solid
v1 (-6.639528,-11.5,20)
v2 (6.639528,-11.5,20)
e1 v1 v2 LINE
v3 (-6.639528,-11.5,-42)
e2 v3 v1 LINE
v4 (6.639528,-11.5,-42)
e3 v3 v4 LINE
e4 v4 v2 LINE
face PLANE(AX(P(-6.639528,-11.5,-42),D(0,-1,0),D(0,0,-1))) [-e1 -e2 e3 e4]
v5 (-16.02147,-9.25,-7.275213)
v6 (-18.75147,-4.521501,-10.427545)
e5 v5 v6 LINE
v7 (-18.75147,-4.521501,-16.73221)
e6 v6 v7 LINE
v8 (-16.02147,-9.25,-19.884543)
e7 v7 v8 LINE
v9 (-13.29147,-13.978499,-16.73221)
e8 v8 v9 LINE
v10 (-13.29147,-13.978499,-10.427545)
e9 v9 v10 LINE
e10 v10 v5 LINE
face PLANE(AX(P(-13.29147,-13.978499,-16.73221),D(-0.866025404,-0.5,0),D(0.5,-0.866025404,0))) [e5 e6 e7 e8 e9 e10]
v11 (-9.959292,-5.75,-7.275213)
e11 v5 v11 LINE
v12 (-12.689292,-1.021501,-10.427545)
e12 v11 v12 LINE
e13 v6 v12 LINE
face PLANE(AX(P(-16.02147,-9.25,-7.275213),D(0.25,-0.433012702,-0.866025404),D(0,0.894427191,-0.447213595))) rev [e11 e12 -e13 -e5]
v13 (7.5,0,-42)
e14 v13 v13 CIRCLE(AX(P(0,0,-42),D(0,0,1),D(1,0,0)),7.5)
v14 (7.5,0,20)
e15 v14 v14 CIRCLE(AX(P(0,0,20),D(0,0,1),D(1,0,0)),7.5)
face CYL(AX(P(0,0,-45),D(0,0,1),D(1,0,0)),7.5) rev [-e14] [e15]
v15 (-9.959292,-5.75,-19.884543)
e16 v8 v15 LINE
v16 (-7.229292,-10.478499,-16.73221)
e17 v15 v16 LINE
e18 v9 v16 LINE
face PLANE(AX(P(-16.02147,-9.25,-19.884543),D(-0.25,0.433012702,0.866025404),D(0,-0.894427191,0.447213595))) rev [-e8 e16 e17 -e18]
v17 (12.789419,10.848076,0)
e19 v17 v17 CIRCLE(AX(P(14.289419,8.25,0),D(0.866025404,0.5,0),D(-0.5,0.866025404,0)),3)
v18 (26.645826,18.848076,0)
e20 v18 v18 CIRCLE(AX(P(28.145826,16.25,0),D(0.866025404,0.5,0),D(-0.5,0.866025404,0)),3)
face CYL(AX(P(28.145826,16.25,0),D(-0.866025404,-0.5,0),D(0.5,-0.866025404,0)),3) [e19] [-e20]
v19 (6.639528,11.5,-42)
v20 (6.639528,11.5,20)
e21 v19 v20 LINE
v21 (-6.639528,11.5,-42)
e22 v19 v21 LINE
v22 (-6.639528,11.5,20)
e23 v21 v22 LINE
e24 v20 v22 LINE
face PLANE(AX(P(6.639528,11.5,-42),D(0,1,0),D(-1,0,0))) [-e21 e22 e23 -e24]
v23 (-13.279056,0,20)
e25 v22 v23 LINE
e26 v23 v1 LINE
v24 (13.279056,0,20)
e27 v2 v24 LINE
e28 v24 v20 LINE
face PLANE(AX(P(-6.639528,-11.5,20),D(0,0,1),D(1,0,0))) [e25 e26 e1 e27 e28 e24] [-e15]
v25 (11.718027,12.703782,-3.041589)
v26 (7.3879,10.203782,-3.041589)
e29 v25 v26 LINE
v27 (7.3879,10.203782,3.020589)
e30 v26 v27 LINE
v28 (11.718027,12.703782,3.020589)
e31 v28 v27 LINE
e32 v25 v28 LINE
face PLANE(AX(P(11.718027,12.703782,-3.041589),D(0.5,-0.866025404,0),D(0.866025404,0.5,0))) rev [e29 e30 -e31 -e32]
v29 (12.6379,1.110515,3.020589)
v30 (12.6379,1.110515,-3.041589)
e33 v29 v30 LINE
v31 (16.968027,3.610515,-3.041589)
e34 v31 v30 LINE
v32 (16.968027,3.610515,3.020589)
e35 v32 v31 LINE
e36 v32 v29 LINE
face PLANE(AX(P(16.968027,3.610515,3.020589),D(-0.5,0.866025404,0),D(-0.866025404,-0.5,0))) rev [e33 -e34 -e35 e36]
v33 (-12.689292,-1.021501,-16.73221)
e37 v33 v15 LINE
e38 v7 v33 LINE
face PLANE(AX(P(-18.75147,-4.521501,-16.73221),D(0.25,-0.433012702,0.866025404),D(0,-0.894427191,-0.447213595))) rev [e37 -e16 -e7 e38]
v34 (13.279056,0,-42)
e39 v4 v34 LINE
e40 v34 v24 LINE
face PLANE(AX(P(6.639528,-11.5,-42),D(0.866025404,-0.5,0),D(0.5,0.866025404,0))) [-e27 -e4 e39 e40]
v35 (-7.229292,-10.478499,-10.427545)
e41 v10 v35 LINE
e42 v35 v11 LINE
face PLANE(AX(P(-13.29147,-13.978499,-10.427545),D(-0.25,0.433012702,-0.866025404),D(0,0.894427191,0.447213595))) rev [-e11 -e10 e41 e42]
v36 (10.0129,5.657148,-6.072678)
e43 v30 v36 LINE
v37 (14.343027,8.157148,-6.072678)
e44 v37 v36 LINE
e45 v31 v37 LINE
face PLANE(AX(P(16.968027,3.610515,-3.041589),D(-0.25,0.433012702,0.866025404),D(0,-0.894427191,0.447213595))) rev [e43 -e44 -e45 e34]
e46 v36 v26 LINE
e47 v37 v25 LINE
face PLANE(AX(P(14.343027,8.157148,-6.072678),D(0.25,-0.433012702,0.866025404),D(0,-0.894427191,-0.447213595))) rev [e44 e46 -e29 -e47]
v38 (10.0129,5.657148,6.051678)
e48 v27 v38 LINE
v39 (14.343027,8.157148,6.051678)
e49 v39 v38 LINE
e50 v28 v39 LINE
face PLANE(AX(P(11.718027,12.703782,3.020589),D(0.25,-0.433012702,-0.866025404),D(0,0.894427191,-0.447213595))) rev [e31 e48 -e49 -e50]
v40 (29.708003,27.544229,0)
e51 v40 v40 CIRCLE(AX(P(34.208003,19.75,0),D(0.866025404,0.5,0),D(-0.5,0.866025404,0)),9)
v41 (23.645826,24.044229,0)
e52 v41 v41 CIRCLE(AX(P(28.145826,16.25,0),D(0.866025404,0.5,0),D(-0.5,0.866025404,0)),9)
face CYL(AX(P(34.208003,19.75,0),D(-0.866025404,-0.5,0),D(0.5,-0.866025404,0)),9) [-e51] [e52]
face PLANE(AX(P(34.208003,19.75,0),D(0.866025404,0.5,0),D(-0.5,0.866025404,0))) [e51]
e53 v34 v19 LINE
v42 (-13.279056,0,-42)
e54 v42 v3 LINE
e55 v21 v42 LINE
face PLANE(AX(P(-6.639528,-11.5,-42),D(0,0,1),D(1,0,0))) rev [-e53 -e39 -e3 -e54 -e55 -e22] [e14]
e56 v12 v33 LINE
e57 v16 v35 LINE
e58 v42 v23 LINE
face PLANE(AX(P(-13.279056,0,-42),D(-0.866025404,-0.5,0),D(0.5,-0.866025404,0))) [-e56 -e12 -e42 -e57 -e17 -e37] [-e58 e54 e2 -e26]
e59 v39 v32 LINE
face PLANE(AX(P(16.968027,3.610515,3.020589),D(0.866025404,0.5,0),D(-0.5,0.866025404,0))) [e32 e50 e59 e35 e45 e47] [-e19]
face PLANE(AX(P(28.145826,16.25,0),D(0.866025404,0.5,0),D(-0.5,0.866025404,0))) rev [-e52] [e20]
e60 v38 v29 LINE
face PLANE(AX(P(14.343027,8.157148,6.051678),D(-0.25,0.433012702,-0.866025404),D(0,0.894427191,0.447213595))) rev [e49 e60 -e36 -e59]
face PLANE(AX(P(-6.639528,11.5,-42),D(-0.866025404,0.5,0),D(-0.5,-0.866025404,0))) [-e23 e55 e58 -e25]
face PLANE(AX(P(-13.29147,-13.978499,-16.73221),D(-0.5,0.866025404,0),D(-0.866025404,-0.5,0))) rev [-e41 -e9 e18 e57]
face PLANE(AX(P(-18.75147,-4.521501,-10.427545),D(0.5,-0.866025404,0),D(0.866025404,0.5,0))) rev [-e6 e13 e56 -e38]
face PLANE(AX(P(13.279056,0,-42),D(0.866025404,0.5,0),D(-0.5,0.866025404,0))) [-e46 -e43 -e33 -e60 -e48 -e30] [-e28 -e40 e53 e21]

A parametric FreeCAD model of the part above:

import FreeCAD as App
import Part
import Sketcher
from FreeCAD import Vector
Q = App.Units.Quantity


def add_polygon(sketch, points):
    """Adds a closed chain of lines whose ends are joined by coincident constraints."""
    first, n = sketch.GeometryCount, len(points)
    for a, b in zip(points, points[1:] + points[:1]):
        sketch.addGeometry(Part.LineSegment(App.Vector(*a, 0), App.Vector(*b, 0)), False)
    for i in range(n):
        sketch.addConstraint(Sketcher.Constraint("Coincident", first + i, 2, first + (i + 1) % n, 1))

doc = App.newDocument("Part")
body = doc.addObject("PartDesign::Body", "Body")

# Sketch on XY plane
sketch1 = body.newObject("Sketcher::SketchObject", "Sketch")
sketch1.AttachmentSupport = (doc.getObject("XY_Plane"), [""])
sketch1.MapMode = "FlatFace"
add_polygon(sketch1, [(-6.639528, -11.5), (6.639528, -11.5), (13.279056, 0), (6.639528, 11.5), (-6.639528, 11.5), (-13.279056, 0)])  # lines 0-5
sketch1.addConstraint([
    Sketcher.Constraint("Horizontal", 0),
    Sketcher.Constraint("Horizontal", 3),
    Sketcher.Constraint("Symmetric", 0, 2, 3, 2, -1, 1),
    Sketcher.Constraint("Symmetric", 1, 2, 4, 2, -1, 1),
    Sketcher.Constraint("PointOnObject", 1, 2, -1),
    Sketcher.Constraint("Parallel", 2, 5),
    Sketcher.Constraint("Vertical", 0, 2, 2, 2),
    Sketcher.Constraint("Angle", 1, Q("60 deg")),
    Sketcher.Constraint("DistanceY", 0, 2, 2, 2, Q("23 mm")),
    Sketcher.Constraint("DistanceX", 0, 1, 0, 2, Q("13.279056 mm")),
])
pad1 = body.newObject("PartDesign::Pad", "Pad")
pad1.Profile = sketch1
pad1.Type = "TwoLengths"
pad1.Length = 20
pad1.Length2 = 42

# Sketch on XY plane
sketch2 = body.newObject("Sketcher::SketchObject", "Sketch001")
sketch2.AttachmentSupport = (doc.getObject("XY_Plane"), [""])
sketch2.MapMode = "FlatFace"
sketch2.AttachmentOffset = App.Placement(Vector(0, 0, 20), App.Rotation())
sketch2.addGeometry(Part.Circle(Vector(0, 0, 0), Vector(0, 0, 1), 7.5), False)
sketch2.addConstraint([
    Sketcher.Constraint("Coincident", 0, 3, -1, 1),
    Sketcher.Constraint("Diameter", 0, Q("15 mm")),
])
pocket1 = body.newObject("PartDesign::Pocket", "Pocket")
pocket1.Profile = sketch2
pocket1.Length = 65

# Sketch on an angled plane
sketch3 = body.newObject("Sketcher::SketchObject", "Sketch002")
sketch3.Placement = App.Placement(Vector(9.959292, 5.75, 0), App.Rotation(Vector(0, 0, -1), Vector(-0.5, 0.866025404, 0), Vector(0.866025404, 0.5, 0), "ZXY"))
add_polygon(sketch3, [(-3.020589, -5.357216), (3.041589, -5.357216), (6.072678, -0.107216), (3.041589, 5.142784), (-3.020589, 5.142784), (-6.051678, -0.107216)])  # lines 0-5
sketch3.addConstraint([
    Sketcher.Constraint("Horizontal", 0),
    Sketcher.Constraint("Horizontal", 3),
    Sketcher.Constraint("Parallel", 1, 4),
    Sketcher.Constraint("Parallel", 2, 5),
    Sketcher.Constraint("Horizontal", 1, 2, 4, 2),
    Sketcher.Constraint("Vertical", 0, 2, 2, 2),
    Sketcher.Constraint("Vertical", 3, 2, 5, 2),
    Sketcher.Constraint("Angle", 1, Q("60 deg")),
    Sketcher.Constraint("DistanceY", 0, 2, 2, 2, Q("10.5 mm")),
    Sketcher.Constraint("DistanceX", 0, 1, 0, 2, Q("6.062178 mm")),
    Sketcher.Constraint("DistanceX", -1, 1, 0, 2, Q("3.041589 mm")),
    Sketcher.Constraint("DistanceY", 0, 2, -1, 1, Q("5.357216 mm")),
])
pad2 = body.newObject("PartDesign::Pad", "Pad001")
pad2.Profile = sketch3
pad2.Length = 5

# Sketch on an angled plane
sketch4 = body.newObject("Sketcher::SketchObject", "Sketch003")
sketch4.Placement = App.Placement(Vector(14.289419, 8.25, 0), App.Rotation(Vector(0, 0, -1), Vector(-0.5, 0.866025404, 0), Vector(0.866025404, 0.5, 0), "ZXY"))
sketch4.addGeometry(Part.Circle(Vector(0, 0, 0), Vector(0, 0, 1), 3), False)
sketch4.addConstraint([
    Sketcher.Constraint("Coincident", 0, 3, -1, 1),
    Sketcher.Constraint("Diameter", 0, Q("6 mm")),
])
pad3 = body.newObject("PartDesign::Pad", "Pad002")
pad3.Profile = sketch4
pad3.Length = 16

# Sketch on an angled plane
sketch5 = body.newObject("Sketcher::SketchObject", "Sketch004")
sketch5.Placement = App.Placement(Vector(28.145826, 16.25, 0), App.Rotation(Vector(0, 0, -1), Vector(-0.5, 0.866025404, 0), Vector(0.866025404, 0.5, 0), "ZXY"))
sketch5.addGeometry(Part.Circle(Vector(0, 0, 0), Vector(0, 0, 1), 9), False)
sketch5.addConstraint([
    Sketcher.Constraint("Coincident", 0, 3, -1, 1),
    Sketcher.Constraint("Diameter", 0, Q("18 mm")),
])
pad4 = body.newObject("PartDesign::Pad", "Pad003")
pad4.Profile = sketch5
pad4.Length = 7

# Sketch on an angled plane
sketch6 = body.newObject("Sketcher::SketchObject", "Sketch005")
sketch6.Placement = App.Placement(Vector(-9.959292, -5.75, 0), App.Rotation(Vector(0, 0, 1), Vector(-0.5, 0.866025404, 0), Vector(-0.866025404, -0.5, 0), "ZXY"))
add_polygon(sketch6, [(-16.73221, -5.46), (-10.427545, -5.46), (-7.275213, 0), (-10.427545, 5.46), (-16.73221, 5.46), (-19.884543, 0)])  # lines 0-5
sketch6.addConstraint([
    Sketcher.Constraint("Horizontal", 0),
    Sketcher.Constraint("Horizontal", 3),
    Sketcher.Constraint("Symmetric", 0, 2, 2, 2, -1),
    Sketcher.Constraint("PointOnObject", 1, 2, -1),
    Sketcher.Constraint("PointOnObject", 4, 2, -1),
    Sketcher.Constraint("Parallel", 1, 4),
    Sketcher.Constraint("Parallel", 2, 5),
    Sketcher.Constraint("Angle", 1, Q("60 deg")),
    Sketcher.Constraint("DistanceY", 0, 2, -1, 1, Q("5.46 mm")),
    Sketcher.Constraint("DistanceX", 0, 1, 0, 2, Q("6.304665 mm")),
    Sketcher.Constraint("DistanceX", 3, 2, -1, 1, Q("16.73221 mm")),
])
pad5 = body.newObject("PartDesign::Pad", "Pad004")
pad5.Profile = sketch6
pad5.Length = 7

doc.recompute()
